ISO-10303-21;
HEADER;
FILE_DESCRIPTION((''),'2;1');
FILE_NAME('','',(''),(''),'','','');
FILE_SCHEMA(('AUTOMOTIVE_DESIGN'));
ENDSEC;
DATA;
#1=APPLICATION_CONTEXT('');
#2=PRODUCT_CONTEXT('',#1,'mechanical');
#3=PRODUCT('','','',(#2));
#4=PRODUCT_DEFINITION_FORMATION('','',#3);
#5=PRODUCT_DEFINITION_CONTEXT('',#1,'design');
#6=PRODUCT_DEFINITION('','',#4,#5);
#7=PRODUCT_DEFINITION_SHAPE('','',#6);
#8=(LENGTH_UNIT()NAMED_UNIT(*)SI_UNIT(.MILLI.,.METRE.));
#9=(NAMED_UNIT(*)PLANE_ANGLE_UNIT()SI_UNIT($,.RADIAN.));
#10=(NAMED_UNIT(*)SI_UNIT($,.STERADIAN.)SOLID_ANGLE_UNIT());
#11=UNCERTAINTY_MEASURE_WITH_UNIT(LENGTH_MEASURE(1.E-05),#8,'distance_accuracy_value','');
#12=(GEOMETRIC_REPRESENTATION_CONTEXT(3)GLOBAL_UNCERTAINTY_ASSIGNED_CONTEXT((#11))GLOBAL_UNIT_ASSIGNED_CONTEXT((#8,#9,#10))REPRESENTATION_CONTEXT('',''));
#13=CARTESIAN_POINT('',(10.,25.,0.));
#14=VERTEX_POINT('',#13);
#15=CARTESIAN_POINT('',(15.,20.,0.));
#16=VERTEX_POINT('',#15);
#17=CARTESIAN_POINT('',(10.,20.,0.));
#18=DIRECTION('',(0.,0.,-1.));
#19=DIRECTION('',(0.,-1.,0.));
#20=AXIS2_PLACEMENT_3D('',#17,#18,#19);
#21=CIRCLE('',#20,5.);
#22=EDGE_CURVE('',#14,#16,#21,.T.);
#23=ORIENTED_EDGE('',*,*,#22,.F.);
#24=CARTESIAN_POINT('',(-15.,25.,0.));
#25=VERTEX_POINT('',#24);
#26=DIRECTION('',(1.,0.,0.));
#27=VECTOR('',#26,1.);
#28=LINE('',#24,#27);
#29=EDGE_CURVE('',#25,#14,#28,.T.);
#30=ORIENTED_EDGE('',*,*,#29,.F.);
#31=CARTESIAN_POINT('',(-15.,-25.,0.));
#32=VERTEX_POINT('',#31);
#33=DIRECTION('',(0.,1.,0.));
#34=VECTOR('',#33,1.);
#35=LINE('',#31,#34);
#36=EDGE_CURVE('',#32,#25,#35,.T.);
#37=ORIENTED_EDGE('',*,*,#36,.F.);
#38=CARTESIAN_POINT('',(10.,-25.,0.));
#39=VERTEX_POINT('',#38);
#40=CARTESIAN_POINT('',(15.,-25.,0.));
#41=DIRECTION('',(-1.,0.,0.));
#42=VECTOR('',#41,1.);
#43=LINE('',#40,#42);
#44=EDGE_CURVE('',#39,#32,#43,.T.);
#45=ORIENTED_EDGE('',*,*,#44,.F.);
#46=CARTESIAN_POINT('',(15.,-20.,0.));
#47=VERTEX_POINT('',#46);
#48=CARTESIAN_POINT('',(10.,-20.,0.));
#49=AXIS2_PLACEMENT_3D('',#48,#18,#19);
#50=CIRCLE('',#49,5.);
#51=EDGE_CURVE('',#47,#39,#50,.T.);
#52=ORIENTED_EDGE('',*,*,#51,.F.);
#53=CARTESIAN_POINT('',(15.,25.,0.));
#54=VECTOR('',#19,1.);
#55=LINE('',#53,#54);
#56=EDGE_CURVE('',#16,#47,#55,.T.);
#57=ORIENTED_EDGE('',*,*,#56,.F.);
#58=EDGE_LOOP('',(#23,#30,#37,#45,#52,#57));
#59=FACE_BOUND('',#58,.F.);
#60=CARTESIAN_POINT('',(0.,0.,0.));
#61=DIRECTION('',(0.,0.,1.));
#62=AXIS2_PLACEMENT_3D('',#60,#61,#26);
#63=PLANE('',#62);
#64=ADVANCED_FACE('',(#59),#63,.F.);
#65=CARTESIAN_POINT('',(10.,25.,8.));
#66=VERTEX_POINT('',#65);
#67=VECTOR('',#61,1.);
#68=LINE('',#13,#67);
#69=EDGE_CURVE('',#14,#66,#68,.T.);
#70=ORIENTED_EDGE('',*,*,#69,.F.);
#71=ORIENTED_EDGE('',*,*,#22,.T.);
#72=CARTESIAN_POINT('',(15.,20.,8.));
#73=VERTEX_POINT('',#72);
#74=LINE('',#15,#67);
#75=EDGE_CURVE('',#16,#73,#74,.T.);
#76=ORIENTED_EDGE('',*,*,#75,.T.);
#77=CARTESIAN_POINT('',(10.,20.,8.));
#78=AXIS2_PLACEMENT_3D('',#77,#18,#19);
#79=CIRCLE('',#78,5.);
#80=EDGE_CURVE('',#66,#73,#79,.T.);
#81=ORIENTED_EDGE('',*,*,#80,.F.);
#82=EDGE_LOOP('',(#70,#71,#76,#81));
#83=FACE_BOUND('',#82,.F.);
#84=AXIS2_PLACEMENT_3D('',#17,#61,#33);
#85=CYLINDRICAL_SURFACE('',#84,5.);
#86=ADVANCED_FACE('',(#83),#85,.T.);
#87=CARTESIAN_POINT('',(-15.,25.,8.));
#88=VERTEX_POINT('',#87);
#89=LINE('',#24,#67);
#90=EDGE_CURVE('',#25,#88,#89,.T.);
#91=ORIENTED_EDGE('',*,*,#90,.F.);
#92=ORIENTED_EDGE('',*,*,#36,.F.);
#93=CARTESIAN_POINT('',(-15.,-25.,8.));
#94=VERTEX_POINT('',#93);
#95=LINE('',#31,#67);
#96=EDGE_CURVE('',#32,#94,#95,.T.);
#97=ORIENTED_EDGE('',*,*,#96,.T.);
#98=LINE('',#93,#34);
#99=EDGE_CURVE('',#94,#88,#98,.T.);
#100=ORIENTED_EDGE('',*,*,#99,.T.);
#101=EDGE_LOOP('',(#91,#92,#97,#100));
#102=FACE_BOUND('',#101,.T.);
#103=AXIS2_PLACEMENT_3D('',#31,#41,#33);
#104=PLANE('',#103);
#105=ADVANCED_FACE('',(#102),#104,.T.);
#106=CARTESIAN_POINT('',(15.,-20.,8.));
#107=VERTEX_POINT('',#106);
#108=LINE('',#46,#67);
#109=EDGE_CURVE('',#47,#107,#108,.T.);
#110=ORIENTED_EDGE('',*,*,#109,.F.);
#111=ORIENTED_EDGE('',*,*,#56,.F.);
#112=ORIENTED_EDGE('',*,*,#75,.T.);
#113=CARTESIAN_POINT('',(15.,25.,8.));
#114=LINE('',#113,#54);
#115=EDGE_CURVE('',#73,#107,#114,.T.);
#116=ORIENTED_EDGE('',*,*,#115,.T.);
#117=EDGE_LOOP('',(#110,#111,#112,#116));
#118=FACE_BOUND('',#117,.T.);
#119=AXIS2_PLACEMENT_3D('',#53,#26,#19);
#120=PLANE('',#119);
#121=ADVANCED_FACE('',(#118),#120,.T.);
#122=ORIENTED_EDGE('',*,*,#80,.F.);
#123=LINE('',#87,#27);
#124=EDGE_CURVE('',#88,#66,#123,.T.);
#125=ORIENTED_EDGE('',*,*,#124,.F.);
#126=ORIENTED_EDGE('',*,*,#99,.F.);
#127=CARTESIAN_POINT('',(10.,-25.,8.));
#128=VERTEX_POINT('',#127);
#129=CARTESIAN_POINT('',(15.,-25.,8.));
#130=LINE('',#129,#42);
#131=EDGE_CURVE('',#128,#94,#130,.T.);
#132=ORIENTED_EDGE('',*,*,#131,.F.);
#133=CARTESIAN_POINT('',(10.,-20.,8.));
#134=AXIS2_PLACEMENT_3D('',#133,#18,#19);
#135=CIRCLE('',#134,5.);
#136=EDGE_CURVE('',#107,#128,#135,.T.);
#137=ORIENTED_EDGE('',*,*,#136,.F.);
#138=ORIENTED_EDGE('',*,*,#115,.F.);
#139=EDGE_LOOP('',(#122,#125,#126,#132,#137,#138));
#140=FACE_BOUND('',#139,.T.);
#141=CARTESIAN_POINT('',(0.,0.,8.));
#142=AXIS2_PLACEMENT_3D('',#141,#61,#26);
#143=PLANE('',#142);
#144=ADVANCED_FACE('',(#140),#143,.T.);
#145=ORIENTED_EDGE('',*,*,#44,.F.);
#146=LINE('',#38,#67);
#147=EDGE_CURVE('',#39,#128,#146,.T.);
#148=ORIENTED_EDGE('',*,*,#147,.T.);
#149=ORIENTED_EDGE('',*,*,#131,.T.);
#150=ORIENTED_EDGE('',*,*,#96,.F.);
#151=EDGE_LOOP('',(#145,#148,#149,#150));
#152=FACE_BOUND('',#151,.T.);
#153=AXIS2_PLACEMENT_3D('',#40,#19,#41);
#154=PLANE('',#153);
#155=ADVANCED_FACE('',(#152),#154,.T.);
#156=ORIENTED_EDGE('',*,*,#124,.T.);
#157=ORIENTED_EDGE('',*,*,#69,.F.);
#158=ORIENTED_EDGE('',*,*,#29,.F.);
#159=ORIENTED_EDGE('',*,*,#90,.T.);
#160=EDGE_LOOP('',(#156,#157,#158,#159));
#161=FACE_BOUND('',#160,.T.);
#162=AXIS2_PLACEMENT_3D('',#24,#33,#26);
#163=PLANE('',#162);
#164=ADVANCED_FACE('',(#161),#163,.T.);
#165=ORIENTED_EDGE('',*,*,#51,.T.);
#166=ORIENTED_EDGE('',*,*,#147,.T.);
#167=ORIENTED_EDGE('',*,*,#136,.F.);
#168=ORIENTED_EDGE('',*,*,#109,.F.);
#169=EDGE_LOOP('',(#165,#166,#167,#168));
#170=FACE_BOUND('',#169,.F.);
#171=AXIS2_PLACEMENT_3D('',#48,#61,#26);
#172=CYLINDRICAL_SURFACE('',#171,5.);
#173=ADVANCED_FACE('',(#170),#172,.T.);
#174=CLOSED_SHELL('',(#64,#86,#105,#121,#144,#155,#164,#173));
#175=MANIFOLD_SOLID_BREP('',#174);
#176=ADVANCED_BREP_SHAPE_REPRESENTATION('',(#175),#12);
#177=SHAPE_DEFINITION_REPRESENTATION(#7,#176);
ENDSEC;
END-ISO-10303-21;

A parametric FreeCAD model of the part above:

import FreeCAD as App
import Part
import Sketcher


def edges_at(feature, points):
    """Names of the edges that pass closest to the given points."""
    edges = feature.Shape.Edges
    near = lambda p: min(range(len(edges)), key=lambda i: edges[i].distToShape(Part.Vertex(*p))[0])
    return sorted({f"Edge{near(p) + 1}" for p in points})

doc = App.newDocument("Part")
body = doc.addObject("PartDesign::Body", "Body")

sketch1 = body.newObject("Sketcher::SketchObject", "Sketch")
sketch1.AttachmentSupport = (doc.getObject("XY_Plane"), [""])
sketch1.MapMode = "FlatFace"
sketch1.addGeometry([
    Part.LineSegment(App.Vector(15, 25, 0), App.Vector(-15, 25, 0)),
    Part.LineSegment(App.Vector(-15, 25, 0), App.Vector(-15, -25, 0)),
    Part.LineSegment(App.Vector(-15, -25, 0), App.Vector(15, -25, 0)),
    Part.LineSegment(App.Vector(15, -25, 0), App.Vector(15, 25, 0)),
], False)
sketch1.addConstraint([
    Sketcher.Constraint("Coincident", 0, 2, 1, 1),
    Sketcher.Constraint("Coincident", 1, 2, 2, 1),
    Sketcher.Constraint("Coincident", 2, 2, 3, 1),
    Sketcher.Constraint("Coincident", 3, 2, 0, 1),
    Sketcher.Constraint("Horizontal", 0),
    Sketcher.Constraint("Vertical", 1),
    Sketcher.Constraint("Horizontal", 2),
    Sketcher.Constraint("Vertical", 3),
    Sketcher.Constraint("Symmetric", 0, 2, 2, 2, -1, 1),
    Sketcher.Constraint("DistanceX", 0, 2, 0, 1, 30.0),
    Sketcher.Constraint("DistanceY", 1, 2, 1, 1, 50.0),
])
pad1 = body.newObject("PartDesign::Pad", "Pad")
pad1.Profile = sketch1
pad1.Length = 8
doc.recompute()

fillet = body.newObject("PartDesign::Fillet", "Fillet")
fillet.Base = (pad1, edges_at(pad1, [(15, -25, 4), (15, 25, 4)]))
fillet.Radius = 5

doc.recompute()
